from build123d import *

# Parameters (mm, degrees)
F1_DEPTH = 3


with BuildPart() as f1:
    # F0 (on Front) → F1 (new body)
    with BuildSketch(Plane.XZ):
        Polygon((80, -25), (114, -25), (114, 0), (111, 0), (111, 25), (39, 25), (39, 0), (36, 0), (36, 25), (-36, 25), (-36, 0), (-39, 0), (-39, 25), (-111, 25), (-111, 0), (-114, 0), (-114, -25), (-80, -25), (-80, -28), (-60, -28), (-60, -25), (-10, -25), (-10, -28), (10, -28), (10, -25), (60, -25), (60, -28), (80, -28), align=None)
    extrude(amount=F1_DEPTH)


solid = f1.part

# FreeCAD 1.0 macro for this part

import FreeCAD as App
import Part
import Sketcher
from FreeCAD import Vector


def add_polygon(sketch, points):
    """Adds a closed chain of lines whose ends are joined by coincident constraints."""
    first, n = sketch.GeometryCount, len(points)
    for a, b in zip(points, points[1:] + points[:1]):
        sketch.addGeometry(Part.LineSegment(App.Vector(*a, 0), App.Vector(*b, 0)), False)
    for i in range(n):
        sketch.addConstraint(Sketcher.Constraint("Coincident", first + i, 2, first + (i + 1) % n, 1))

doc = App.newDocument("Part")
params = doc.addObject("Spreadsheet::Sheet", "Params")
for row, (alias, value) in enumerate([
    ("sketch1_width", "34 mm"),
    ("sketch1_width2", "3 mm"),
    ("sketch1_width3", "72 mm"),
    ("sketch1_width4", "20 mm"),
    ("sketch1_height", "25 mm"),
    ("pad1_length", "3 mm"),
], start=1):
    params.set(f"A{row}", alias)
    params.set(f"B{row}", "=" + value)
    params.setAlias(f"B{row}", alias)

body = doc.addObject("PartDesign::Body", "Body")

sketch1 = body.newObject("Sketcher::SketchObject", "Sketch")
sketch1.AttachmentSupport = (doc.getObject("XZ_Plane"), [""])
sketch1.MapMode = "FlatFace"
add_polygon(sketch1, [(80, -25), (114, -25), (114, 0), (111, 0), (111, 25), (39, 25), (39, 0), (36, 0), (36, 25), (-36, 25), (-36, 0), (-39, 0), (-39, 25), (-111, 25), (-111, 0), (-114, 0), (-114, -25), (-80, -25), (-80, -28), (-60, -28), (-60, -25), (-10, -25), (-10, -28), (10, -28), (10, -25), (60, -25), (60, -28), (80, -28)])
sketch1.addConstraint([
    Sketcher.Constraint("Horizontal", 0),
    Sketcher.Constraint("Vertical", 1),
    Sketcher.Constraint("Horizontal", 2),
    Sketcher.Constraint("Vertical", 3),
    Sketcher.Constraint("Horizontal", 4),
    Sketcher.Constraint("Vertical", 5),
    Sketcher.Constraint("Horizontal", 6),
    Sketcher.Constraint("Vertical", 7),
    Sketcher.Constraint("Horizontal", 8),
    Sketcher.Constraint("Vertical", 9),
    Sketcher.Constraint("Horizontal", 10),
    Sketcher.Constraint("Vertical", 11),
    Sketcher.Constraint("Horizontal", 12),
    Sketcher.Constraint("Vertical", 13),
    Sketcher.Constraint("Horizontal", 14),
    Sketcher.Constraint("Vertical", 15),
    Sketcher.Constraint("Horizontal", 16),
    Sketcher.Constraint("Vertical", 17),
    Sketcher.Constraint("Horizontal", 18),
    Sketcher.Constraint("Vertical", 19),
    Sketcher.Constraint("Horizontal", 20),
    Sketcher.Constraint("Vertical", 21),
    Sketcher.Constraint("Horizontal", 22),
    Sketcher.Constraint("Vertical", 23),
    Sketcher.Constraint("Horizontal", 24),
    Sketcher.Constraint("Vertical", 25),
    Sketcher.Constraint("Horizontal", 26),
    Sketcher.Constraint("Vertical", 27),
    Sketcher.Constraint("Symmetric", 6, 2, 9, 2, -1, 1),
    Sketcher.Constraint("Symmetric", 2, 2, 13, 2, -1, 1),
    Sketcher.Constraint("Symmetric", 5, 2, 10, 2, -2),
    Sketcher.Constraint("Symmetric", 1, 2, 14, 2, -2),
    Sketcher.Constraint("Symmetric", 20, 2, 23, 2, -2),
    Sketcher.Constraint("Symmetric", 18, 2, 25, 2, -2),
    Sketcher.Constraint("Symmetric", 16, 2, 27, 2, -2),
    Sketcher.Constraint("Horizontal", 4, 2, 7, 2),
    Sketcher.Constraint("Horizontal", 8, 2, 11, 2),
    Sketcher.Constraint("Horizontal", 16, 2, 19, 2),
    Sketcher.Constraint("Horizontal", 18, 2, 21, 2),
    Sketcher.Constraint("Equal", 2, 6),
    Sketcher.Constraint("Equal", 4, 8),
    Sketcher.Constraint("Equal", 18, 22),
    Sketcher.Constraint("Equal", 1, 3),
    Sketcher.Constraint("Equal", 14, 17),
    Sketcher.Constraint("DistanceX", 0, 1, 0, 2, 34.0),
    Sketcher.Constraint("DistanceX", 2, 2, 2, 1, 3.0),
    Sketcher.Constraint("DistanceX", 4, 2, 4, 1, 72.0),
    Sketcher.Constraint("DistanceX", 18, 1, 18, 2, 20.0),
    Sketcher.Constraint("DistanceY", 1, 1, 1, 2, 25.0),
])
sketch1.setExpression("Constraints[72]", "Params.sketch1_width")
sketch1.setExpression("Constraints[73]", "Params.sketch1_width2")
sketch1.setExpression("Constraints[74]", "Params.sketch1_width3")
sketch1.setExpression("Constraints[75]", "Params.sketch1_width4")
sketch1.setExpression("Constraints[76]", "Params.sketch1_height")
pad1 = body.newObject("PartDesign::Pad", "Pad")
pad1.Profile = sketch1
pad1.setExpression("Length", "Params.pad1_length")

doc.recompute()
